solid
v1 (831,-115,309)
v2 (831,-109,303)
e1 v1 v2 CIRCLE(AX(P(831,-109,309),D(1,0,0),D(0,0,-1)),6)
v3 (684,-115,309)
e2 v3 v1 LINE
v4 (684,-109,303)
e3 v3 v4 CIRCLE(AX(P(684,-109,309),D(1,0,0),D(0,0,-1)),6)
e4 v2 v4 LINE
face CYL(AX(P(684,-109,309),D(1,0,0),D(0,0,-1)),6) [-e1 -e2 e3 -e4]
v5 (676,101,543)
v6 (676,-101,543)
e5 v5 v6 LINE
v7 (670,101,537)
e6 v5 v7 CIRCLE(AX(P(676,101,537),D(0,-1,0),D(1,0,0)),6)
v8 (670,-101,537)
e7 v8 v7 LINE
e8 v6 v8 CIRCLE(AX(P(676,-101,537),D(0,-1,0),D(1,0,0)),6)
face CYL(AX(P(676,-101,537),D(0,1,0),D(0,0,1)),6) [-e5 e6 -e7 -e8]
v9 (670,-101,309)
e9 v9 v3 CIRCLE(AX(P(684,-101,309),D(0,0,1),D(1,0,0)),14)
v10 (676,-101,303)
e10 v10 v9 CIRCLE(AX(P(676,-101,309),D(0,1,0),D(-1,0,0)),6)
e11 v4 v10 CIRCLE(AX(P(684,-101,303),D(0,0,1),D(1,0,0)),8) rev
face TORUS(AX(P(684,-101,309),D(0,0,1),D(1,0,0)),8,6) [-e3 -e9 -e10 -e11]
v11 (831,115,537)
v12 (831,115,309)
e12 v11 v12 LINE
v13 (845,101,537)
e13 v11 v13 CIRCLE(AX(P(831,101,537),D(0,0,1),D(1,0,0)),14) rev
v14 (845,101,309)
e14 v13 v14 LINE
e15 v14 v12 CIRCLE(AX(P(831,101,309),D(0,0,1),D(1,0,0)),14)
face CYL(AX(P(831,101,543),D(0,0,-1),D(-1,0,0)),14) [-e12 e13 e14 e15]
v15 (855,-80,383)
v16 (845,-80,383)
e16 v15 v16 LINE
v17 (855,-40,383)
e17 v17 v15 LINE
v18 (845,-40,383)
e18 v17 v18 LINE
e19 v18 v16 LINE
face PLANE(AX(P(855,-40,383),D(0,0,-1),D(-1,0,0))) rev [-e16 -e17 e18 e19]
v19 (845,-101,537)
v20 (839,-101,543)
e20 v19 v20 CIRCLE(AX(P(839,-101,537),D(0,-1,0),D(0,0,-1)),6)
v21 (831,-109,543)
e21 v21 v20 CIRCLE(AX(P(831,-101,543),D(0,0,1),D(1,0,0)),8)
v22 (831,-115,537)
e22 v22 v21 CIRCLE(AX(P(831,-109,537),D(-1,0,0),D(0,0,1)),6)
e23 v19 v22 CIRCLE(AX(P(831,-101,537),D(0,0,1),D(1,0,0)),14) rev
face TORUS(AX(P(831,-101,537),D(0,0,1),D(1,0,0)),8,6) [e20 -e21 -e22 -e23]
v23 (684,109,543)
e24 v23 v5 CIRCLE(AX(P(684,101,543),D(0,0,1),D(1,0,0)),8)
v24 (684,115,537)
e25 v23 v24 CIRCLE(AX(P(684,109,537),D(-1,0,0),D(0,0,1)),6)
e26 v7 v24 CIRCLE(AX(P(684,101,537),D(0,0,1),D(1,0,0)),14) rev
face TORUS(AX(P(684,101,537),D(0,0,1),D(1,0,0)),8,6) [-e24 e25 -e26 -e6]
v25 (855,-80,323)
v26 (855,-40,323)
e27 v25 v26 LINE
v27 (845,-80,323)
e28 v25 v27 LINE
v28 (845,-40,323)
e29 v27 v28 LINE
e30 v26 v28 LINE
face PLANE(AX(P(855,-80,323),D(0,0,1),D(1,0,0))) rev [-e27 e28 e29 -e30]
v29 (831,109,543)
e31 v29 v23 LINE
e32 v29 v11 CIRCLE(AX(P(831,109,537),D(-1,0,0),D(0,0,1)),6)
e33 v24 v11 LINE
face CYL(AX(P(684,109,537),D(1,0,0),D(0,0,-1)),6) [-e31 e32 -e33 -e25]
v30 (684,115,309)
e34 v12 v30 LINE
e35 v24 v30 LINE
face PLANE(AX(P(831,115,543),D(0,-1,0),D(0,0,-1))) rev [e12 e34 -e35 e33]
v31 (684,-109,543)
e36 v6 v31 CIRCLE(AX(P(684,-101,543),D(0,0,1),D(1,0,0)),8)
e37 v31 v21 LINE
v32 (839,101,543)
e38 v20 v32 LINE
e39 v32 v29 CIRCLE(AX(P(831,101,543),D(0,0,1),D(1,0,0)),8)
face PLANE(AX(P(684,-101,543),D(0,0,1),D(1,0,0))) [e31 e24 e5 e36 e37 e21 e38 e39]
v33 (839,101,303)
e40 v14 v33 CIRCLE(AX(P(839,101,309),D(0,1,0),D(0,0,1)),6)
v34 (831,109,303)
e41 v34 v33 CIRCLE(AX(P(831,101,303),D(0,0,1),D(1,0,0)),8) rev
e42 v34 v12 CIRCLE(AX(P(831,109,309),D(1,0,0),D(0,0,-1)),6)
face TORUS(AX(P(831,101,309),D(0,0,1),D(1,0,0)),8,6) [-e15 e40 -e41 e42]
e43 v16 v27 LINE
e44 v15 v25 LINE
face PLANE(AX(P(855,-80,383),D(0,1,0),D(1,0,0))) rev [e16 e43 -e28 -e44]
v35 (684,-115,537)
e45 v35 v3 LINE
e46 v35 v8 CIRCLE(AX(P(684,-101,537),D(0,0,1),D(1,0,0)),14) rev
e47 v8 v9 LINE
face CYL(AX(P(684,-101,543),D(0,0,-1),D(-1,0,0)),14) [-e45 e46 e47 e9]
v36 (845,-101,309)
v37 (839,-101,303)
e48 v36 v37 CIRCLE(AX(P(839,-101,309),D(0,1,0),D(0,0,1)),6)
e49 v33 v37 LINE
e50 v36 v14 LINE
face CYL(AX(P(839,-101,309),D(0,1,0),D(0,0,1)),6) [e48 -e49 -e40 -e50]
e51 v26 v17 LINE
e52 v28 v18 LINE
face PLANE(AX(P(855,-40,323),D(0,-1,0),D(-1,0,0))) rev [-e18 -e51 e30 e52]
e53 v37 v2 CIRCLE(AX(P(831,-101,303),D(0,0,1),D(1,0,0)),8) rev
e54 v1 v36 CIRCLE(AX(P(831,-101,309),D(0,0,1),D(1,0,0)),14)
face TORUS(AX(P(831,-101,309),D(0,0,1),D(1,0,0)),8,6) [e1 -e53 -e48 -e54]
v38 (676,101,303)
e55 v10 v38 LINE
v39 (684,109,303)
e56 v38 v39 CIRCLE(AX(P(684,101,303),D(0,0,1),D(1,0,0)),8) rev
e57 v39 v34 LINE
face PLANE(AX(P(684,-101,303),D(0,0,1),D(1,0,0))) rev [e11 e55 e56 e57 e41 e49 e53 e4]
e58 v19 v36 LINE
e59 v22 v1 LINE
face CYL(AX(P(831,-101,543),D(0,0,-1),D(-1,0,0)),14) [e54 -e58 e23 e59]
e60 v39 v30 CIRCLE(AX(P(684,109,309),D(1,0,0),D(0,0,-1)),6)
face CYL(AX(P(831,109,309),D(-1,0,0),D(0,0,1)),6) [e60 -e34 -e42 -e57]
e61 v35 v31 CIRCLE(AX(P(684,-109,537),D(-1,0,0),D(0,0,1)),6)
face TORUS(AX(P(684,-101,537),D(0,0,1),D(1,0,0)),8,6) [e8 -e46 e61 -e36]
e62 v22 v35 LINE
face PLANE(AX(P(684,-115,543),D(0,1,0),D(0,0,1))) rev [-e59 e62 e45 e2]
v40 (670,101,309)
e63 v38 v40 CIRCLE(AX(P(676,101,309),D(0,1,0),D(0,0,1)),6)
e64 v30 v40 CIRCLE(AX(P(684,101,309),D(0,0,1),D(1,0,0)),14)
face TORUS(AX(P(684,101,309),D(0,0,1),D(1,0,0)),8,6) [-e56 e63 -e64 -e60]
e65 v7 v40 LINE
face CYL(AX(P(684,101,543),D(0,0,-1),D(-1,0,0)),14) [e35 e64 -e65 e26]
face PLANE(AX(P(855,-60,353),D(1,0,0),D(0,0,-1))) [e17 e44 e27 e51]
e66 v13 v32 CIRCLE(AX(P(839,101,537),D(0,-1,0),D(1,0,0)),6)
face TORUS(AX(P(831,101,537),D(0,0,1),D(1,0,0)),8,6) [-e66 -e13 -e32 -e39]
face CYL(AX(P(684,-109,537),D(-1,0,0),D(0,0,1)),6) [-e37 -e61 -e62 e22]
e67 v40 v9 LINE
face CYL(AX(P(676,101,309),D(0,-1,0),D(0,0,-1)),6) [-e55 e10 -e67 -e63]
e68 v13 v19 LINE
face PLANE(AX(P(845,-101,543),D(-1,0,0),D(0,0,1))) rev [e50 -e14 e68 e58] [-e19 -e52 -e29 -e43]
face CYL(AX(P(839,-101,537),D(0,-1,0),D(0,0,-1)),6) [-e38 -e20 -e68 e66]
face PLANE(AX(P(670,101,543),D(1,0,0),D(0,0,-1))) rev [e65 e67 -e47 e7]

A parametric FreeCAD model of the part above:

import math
import FreeCAD as App
import Part
import Sketcher
from FreeCAD import Vector
Q = App.Units.Quantity


def edges_at(feature, points):
    """Names of the edges that pass closest to the given points."""
    edges = feature.Shape.Edges
    near = lambda p: min(range(len(edges)), key=lambda i: edges[i].distToShape(Part.Vertex(*p))[0])
    return sorted({f"Edge{near(p) + 1}" for p in points})

doc = App.newDocument("Part")
params = doc.addObject("Spreadsheet::Sheet", "Params")
for row, (alias, value) in enumerate([
    ("sketch1_radius", "14 mm"),
    ("sketch1_width", "147 mm"),
    ("sketch1_height", "202 mm"),
    ("pad1_length", "240 mm"),
    ("fillet_radius", "6 mm"),
    ("sketch2_width", "60 mm"),
    ("sketch2_height", "40 mm"),
    ("pad2_length", "10 mm"),
], start=1):
    params.set(f"A{row}", alias)
    params.set(f"B{row}", "=" + value)
    params.setAlias(f"B{row}", alias)

body = doc.addObject("PartDesign::Body", "Body")

# Sketch on XY plane
sketch1 = doc.addObject("Sketcher::SketchObject", "Sketch")
body.addObject(sketch1)
sketch1.AttachmentSupport = (doc.XY_Plane, [""])
sketch1.MapMode = "FlatFace"
sketch1.AttachmentOffset = App.Placement(Vector(0, 0, 303), App.Rotation())
sketch1.addGeometry(Part.LineSegment(Vector(684, -115, 0), Vector(831, -115, 0)), False)
sketch1.addGeometry(Part.ArcOfCircle(Part.Circle(Vector(831, -101, 0), Vector(0, 0, 1), 14), math.radians(-90), math.radians(0)), False)
sketch1.addGeometry(Part.LineSegment(Vector(845, -101, 0), Vector(845, 101, 0)), False)
sketch1.addGeometry(Part.ArcOfCircle(Part.Circle(Vector(831, 101, 0), Vector(0, 0, 1), 14), math.radians(0), math.radians(90)), False)
sketch1.addGeometry(Part.LineSegment(Vector(831, 115, 0), Vector(684, 115, 0)), False)
sketch1.addGeometry(Part.ArcOfCircle(Part.Circle(Vector(684, 101, 0), Vector(0, 0, 1), 14), math.radians(90), math.radians(180)), False)
sketch1.addGeometry(Part.LineSegment(Vector(670, 101, 0), Vector(670, -101, 0)), False)
sketch1.addGeometry(Part.ArcOfCircle(Part.Circle(Vector(684, -101, 0), Vector(0, 0, 1), 14), math.radians(180), math.radians(270)), False)
sketch1.addConstraint(Sketcher.Constraint("Tangent", 0, 2, 1, 1))
sketch1.addConstraint(Sketcher.Constraint("Tangent", 1, 2, 2, 1))
sketch1.addConstraint(Sketcher.Constraint("Tangent", 2, 2, 3, 1))
sketch1.addConstraint(Sketcher.Constraint("Tangent", 3, 2, 4, 1))
sketch1.addConstraint(Sketcher.Constraint("Tangent", 4, 2, 5, 1))
sketch1.addConstraint(Sketcher.Constraint("Tangent", 5, 2, 6, 1))
sketch1.addConstraint(Sketcher.Constraint("Tangent", 6, 2, 7, 1))
sketch1.addConstraint(Sketcher.Constraint("Tangent", 7, 2, 0, 1))
sketch1.addConstraint(Sketcher.Constraint("Horizontal", 0))
sketch1.addConstraint(Sketcher.Constraint("Vertical", 2))
sketch1.addConstraint(Sketcher.Constraint("Horizontal", 4))
sketch1.addConstraint(Sketcher.Constraint("Vertical", 6))
sketch1.addConstraint(Sketcher.Constraint("Equal", 1, 3))
sketch1.addConstraint(Sketcher.Constraint("Equal", 3, 5))
sketch1.addConstraint(Sketcher.Constraint("Equal", 5, 7))
sketch1.addConstraint(Sketcher.Constraint("Radius", 1, Q("14 mm")))
sketch1.addConstraint(Sketcher.Constraint("DistanceX", 0, 1, 0, 2, Q("147 mm")))
sketch1.addConstraint(Sketcher.Constraint("DistanceY", 2, 1, 2, 2, Q("202 mm")))
sketch1.addConstraint(Sketcher.Constraint("DistanceX", -1, 1, 1, 3, Q("831 mm")))
sketch1.addConstraint(Sketcher.Constraint("DistanceY", 1, 3, -1, 1, Q("101 mm")))
sketch1.setExpression("Constraints[15]", "Params.sketch1_radius")
sketch1.setExpression("Constraints[16]", "Params.sketch1_width")
sketch1.setExpression("Constraints[17]", "Params.sketch1_height")
pad1 = doc.addObject("PartDesign::Pad", "Pad")
body.addObject(pad1)
pad1.Profile = sketch1
pad1.setExpression("Length", "Params.pad1_length")
doc.recompute()

fillet = doc.addObject("PartDesign::Fillet", "Fillet")
body.addObject(fillet)
fillet.Base = (pad1, edges_at(pad1, [
    (845, 0, 303),
    (840.899, -110.899, 303),
    (757.5, -115, 303),
    (674.101, -110.899, 303),
    (840.899, -110.899, 543),
    (845, 0, 543),
    (840.899, 110.899, 543),
    (757.5, 115, 543),
    (674.101, 110.899, 543),
    (670, 0, 543),
    (674.101, -110.899, 543),
    (670, 0, 303),
    (757.5, -115, 543),
    (674.101, 110.899, 303),
    (757.5, 115, 303),
    (840.899, 110.899, 303),
]))
fillet.setExpression("Radius", "Params.fillet_radius")
body2 = doc.addObject("PartDesign::Body", "Body001")

# Sketch on XY plane
sketch2 = doc.addObject("Sketcher::SketchObject", "Sketch001")
body2.addObject(sketch2)
sketch2.AttachmentSupport = (doc.getObject("XY_Plane001"), [""])
sketch2.MapMode = "FlatFace"
sketch2.addGeometry(Part.LineSegment(Vector(-30, 20, 0), Vector(-30, -20, 0)), False)
sketch2.addGeometry(Part.LineSegment(Vector(-30, -20, 0), Vector(30, -20, 0)), False)
sketch2.addGeometry(Part.LineSegment(Vector(30, -20, 0), Vector(30, 20, 0)), False)
sketch2.addGeometry(Part.LineSegment(Vector(30, 20, 0), Vector(-30, 20, 0)), False)
sketch2.addConstraint(Sketcher.Constraint("Coincident", 0, 2, 1, 1))
sketch2.addConstraint(Sketcher.Constraint("Coincident", 1, 2, 2, 1))
sketch2.addConstraint(Sketcher.Constraint("Coincident", 2, 2, 3, 1))
sketch2.addConstraint(Sketcher.Constraint("Coincident", 3, 2, 0, 1))
sketch2.addConstraint(Sketcher.Constraint("Vertical", 0))
sketch2.addConstraint(Sketcher.Constraint("Horizontal", 1))
sketch2.addConstraint(Sketcher.Constraint("Vertical", 2))
sketch2.addConstraint(Sketcher.Constraint("Horizontal", 3))
sketch2.addConstraint(Sketcher.Constraint("Symmetric", 0, 2, 2, 2, -1, 1))
sketch2.addConstraint(Sketcher.Constraint("DistanceX", 1, 1, 1, 2, Q("60 mm")))
sketch2.addConstraint(Sketcher.Constraint("DistanceY", 0, 2, 0, 1, Q("40 mm")))
sketch2.setExpression("Constraints[9]", "Params.sketch2_width")
sketch2.setExpression("Constraints[10]", "Params.sketch2_height")
pad2 = doc.addObject("PartDesign::Pad", "Pad001")
body2.addObject(pad2)
pad2.Profile = sketch2
pad2.setExpression("Length", "Params.pad2_length")
body3 = doc.addObject("PartDesign::Body", "Body002")
doc.recompute()

body2.Placement = App.Placement(Vector(0, 0, 0), App.Rotation(Vector(0, 1, 0), 90))
boolean = doc.addObject("PartDesign::Boolean", "Boolean")
body3.addObject(boolean)
boolean.Type = "Fuse"
boolean.addObjects([body2])
body4 = doc.addObject("PartDesign::Body", "Body003")
doc.recompute()

body3.Placement = App.Placement(Vector(845, -60, 353), App.Rotation(Vector(0, 0, 1), 0))
boolean2 = doc.addObject("PartDesign::Boolean", "Boolean001")
body4.addObject(boolean2)
boolean2.Type = "Fuse"
boolean2.addObjects([body3])
doc.recompute()

boolean3 = doc.addObject("PartDesign::Boolean", "Boolean002")
body4.addObject(boolean3)
boolean3.Type = "Fuse"
boolean3.addObjects([body])

doc.recompute()
